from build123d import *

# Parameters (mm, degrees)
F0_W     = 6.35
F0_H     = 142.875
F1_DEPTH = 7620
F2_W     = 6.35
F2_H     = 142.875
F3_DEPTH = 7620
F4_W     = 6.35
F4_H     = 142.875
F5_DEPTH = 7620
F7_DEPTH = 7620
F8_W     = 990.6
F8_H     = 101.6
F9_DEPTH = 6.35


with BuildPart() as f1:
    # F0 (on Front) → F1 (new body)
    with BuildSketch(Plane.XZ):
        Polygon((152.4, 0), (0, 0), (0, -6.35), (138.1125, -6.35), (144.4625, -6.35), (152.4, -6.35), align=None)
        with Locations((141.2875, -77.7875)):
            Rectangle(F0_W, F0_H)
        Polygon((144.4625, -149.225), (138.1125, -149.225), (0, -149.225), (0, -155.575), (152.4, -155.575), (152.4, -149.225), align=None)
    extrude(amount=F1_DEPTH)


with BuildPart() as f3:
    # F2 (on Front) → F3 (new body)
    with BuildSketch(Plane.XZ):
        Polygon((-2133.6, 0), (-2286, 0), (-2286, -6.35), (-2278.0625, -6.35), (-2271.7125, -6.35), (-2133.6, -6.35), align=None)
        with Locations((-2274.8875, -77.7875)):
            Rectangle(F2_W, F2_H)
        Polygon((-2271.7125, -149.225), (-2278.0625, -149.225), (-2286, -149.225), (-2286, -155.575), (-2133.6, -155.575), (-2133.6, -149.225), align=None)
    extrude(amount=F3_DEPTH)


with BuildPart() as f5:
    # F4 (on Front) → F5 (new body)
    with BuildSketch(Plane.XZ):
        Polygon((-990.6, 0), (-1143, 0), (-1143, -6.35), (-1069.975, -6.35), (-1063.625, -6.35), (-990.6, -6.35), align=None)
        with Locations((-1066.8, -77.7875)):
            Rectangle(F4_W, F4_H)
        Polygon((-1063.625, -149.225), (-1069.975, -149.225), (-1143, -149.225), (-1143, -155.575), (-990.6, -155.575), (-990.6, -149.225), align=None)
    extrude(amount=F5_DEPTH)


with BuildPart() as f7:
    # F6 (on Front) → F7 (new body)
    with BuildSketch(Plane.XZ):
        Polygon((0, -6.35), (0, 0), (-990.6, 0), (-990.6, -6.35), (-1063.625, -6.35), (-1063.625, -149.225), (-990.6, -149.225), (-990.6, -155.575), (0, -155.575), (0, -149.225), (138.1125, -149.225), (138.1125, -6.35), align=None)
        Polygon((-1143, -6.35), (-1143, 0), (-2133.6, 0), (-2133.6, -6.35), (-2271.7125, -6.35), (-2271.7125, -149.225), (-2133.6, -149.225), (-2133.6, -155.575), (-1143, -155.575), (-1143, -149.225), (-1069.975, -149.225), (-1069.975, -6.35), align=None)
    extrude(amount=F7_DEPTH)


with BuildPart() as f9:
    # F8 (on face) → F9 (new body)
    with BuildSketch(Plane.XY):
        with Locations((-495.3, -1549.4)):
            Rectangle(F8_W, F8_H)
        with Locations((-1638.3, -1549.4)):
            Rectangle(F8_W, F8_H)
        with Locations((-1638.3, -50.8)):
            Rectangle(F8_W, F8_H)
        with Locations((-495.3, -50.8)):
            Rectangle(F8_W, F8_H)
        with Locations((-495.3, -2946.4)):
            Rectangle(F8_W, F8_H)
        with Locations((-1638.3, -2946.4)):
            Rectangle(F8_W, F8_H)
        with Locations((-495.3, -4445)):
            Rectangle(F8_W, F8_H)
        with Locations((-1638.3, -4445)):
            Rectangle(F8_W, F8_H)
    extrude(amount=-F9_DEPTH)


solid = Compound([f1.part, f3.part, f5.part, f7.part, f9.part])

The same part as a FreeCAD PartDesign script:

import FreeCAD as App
import Part
import Sketcher

V = App.Vector
Q = App.Units.Quantity

doc = App.newDocument("Part")
body = doc.addObject("PartDesign::Body", "Body")

# Sketch on XZ plane
sketch1 = body.newObject("Sketcher::SketchObject", "Sketch")
sketch1.AttachmentSupport = (doc.getObject("XZ_Plane"), [""])
sketch1.MapMode = "FlatFace"
sketch1.addGeometry([
    Part.LineSegment(V(152, 0, 0), V(0, 0, 0)),  # 0
    Part.LineSegment(V(0, 0, 0), V(0, -6, 0)),  # 1
    Part.LineSegment(V(0, -6, 0), V(138, -6, 0)),  # 2
    Part.LineSegment(V(138, -6, 0), V(138, -149, 0)),  # 3
    Part.LineSegment(V(138, -149, 0), V(0, -149, 0)),  # 4
    Part.LineSegment(V(0, -149, 0), V(0, -156, 0)),  # 5
    Part.LineSegment(V(0, -156, 0), V(152, -156, 0)),  # 6
    Part.LineSegment(V(152, -156, 0), V(152, -149, 0)),  # 7
    Part.LineSegment(V(152, -149, 0), V(144, -149, 0)),  # 8
    Part.LineSegment(V(144, -149, 0), V(144, -6, 0)),  # 9
    Part.LineSegment(V(144, -6, 0), V(152, -6, 0)),  # 10
    Part.LineSegment(V(152, -6, 0), V(152, 0, 0)),  # 11
], False)
sketch1.addConstraint([
    Sketcher.Constraint("Coincident", 0, 2, 1, 1),
    Sketcher.Constraint("Coincident", 1, 2, 2, 1),
    Sketcher.Constraint("Coincident", 2, 2, 3, 1),
    Sketcher.Constraint("Coincident", 3, 2, 4, 1),
    Sketcher.Constraint("Coincident", 4, 2, 5, 1),
    Sketcher.Constraint("Coincident", 5, 2, 6, 1),
    Sketcher.Constraint("Coincident", 6, 2, 7, 1),
    Sketcher.Constraint("Coincident", 7, 2, 8, 1),
    Sketcher.Constraint("Coincident", 8, 2, 9, 1),
    Sketcher.Constraint("Coincident", 9, 2, 10, 1),
    Sketcher.Constraint("Coincident", 10, 2, 11, 1),
    Sketcher.Constraint("Coincident", 11, 2, 0, 1),
    Sketcher.Constraint("Horizontal", 0),
    Sketcher.Constraint("Vertical", 1),
    Sketcher.Constraint("Horizontal", 2),
    Sketcher.Constraint("Vertical", 3),
    Sketcher.Constraint("Horizontal", 4),
    Sketcher.Constraint("Vertical", 5),
    Sketcher.Constraint("Horizontal", 6),
    Sketcher.Constraint("Vertical", 7),
    Sketcher.Constraint("Horizontal", 8),
    Sketcher.Constraint("Vertical", 9),
    Sketcher.Constraint("Horizontal", 10),
    Sketcher.Constraint("Vertical", 11),
    Sketcher.Constraint("Coincident", 0, 2, -1, 1),
    Sketcher.Constraint("PointOnObject", 4, 2, -2),
    Sketcher.Constraint("Horizontal", 4, 2, 7, 2),
    Sketcher.Constraint("Horizontal", 2, 2, 9, 2),
    Sketcher.Constraint("Vertical", 7, 2, 10, 2),
    Sketcher.Constraint("Equal", 1, 5),
    Sketcher.Constraint("DistanceX", 0, 2, 0, 1, Q("6 in")),
    Sketcher.Constraint("DistanceY", 1, 2, 1, 1, Q("0.25 in")),
    Sketcher.Constraint("DistanceX", 2, 1, 2, 2, Q("5.4375 in")),
    Sketcher.Constraint("DistanceX", 8, 2, 8, 1, Q("0.3125 in")),
    Sketcher.Constraint("DistanceY", 3, 2, 3, 1, Q("5.625 in")),
])
pad1 = body.newObject("PartDesign::Pad", "Pad")
pad1.Profile = sketch1
pad1.Length = Q("300 in")
body2 = doc.addObject("PartDesign::Body", "Body001")

# Sketch on XZ plane
sketch2 = body2.newObject("Sketcher::SketchObject", "Sketch001")
sketch2.AttachmentSupport = (doc.getObject("XZ_Plane001"), [""])
sketch2.MapMode = "FlatFace"
sketch2.addGeometry([
    Part.LineSegment(V(-2134, 0, 0), V(-2286, 0, 0)),  # 0
    Part.LineSegment(V(-2286, 0, 0), V(-2286, -6, 0)),  # 1
    Part.LineSegment(V(-2286, -6, 0), V(-2278, -6, 0)),  # 2
    Part.LineSegment(V(-2278, -6, 0), V(-2278, -149, 0)),  # 3
    Part.LineSegment(V(-2278, -149, 0), V(-2286, -149, 0)),  # 4
    Part.LineSegment(V(-2286, -149, 0), V(-2286, -156, 0)),  # 5
    Part.LineSegment(V(-2286, -156, 0), V(-2134, -156, 0)),  # 6
    Part.LineSegment(V(-2134, -156, 0), V(-2134, -149, 0)),  # 7
    Part.LineSegment(V(-2134, -149, 0), V(-2272, -149, 0)),  # 8
    Part.LineSegment(V(-2272, -149, 0), V(-2272, -6, 0)),  # 9
    Part.LineSegment(V(-2272, -6, 0), V(-2134, -6, 0)),  # 10
    Part.LineSegment(V(-2134, -6, 0), V(-2134, 0, 0)),  # 11
], False)
sketch2.addConstraint([
    Sketcher.Constraint("Coincident", 0, 2, 1, 1),
    Sketcher.Constraint("Coincident", 1, 2, 2, 1),
    Sketcher.Constraint("Coincident", 2, 2, 3, 1),
    Sketcher.Constraint("Coincident", 3, 2, 4, 1),
    Sketcher.Constraint("Coincident", 4, 2, 5, 1),
    Sketcher.Constraint("Coincident", 5, 2, 6, 1),
    Sketcher.Constraint("Coincident", 6, 2, 7, 1),
    Sketcher.Constraint("Coincident", 7, 2, 8, 1),
    Sketcher.Constraint("Coincident", 8, 2, 9, 1),
    Sketcher.Constraint("Coincident", 9, 2, 10, 1),
    Sketcher.Constraint("Coincident", 10, 2, 11, 1),
    Sketcher.Constraint("Coincident", 11, 2, 0, 1),
    Sketcher.Constraint("Horizontal", 0),
    Sketcher.Constraint("Vertical", 1),
    Sketcher.Constraint("Horizontal", 2),
    Sketcher.Constraint("Vertical", 3),
    Sketcher.Constraint("Horizontal", 4),
    Sketcher.Constraint("Vertical", 5),
    Sketcher.Constraint("Horizontal", 6),
    Sketcher.Constraint("Vertical", 7),
    Sketcher.Constraint("Horizontal", 8),
    Sketcher.Constraint("Vertical", 9),
    Sketcher.Constraint("Horizontal", 10),
    Sketcher.Constraint("Vertical", 11),
    Sketcher.Constraint("PointOnObject", 0, 2, -1),
    Sketcher.Constraint("Horizontal", 4, 2, 7, 2),
    Sketcher.Constraint("Horizontal", 2, 2, 9, 2),
    Sketcher.Constraint("Vertical", 1, 2, 4, 2),
    Sketcher.Constraint("Vertical", 7, 2, 10, 2),
    Sketcher.Constraint("Equal", 1, 5),
    Sketcher.Constraint("DistanceX", 0, 2, 0, 1, Q("6 in")),
    Sketcher.Constraint("DistanceX", 0, 2, -1, 1, Q("90 in")),
    Sketcher.Constraint("DistanceY", 1, 2, 1, 1, Q("0.25 in")),
    Sketcher.Constraint("DistanceX", 2, 1, 2, 2, Q("0.3125 in")),
    Sketcher.Constraint("DistanceX", 8, 2, 8, 1, Q("5.4375 in")),
    Sketcher.Constraint("DistanceY", 3, 2, 3, 1, Q("5.625 in")),
])
pad2 = body2.newObject("PartDesign::Pad", "Pad001")
pad2.Profile = sketch2
pad2.Length = Q("300 in")
body3 = doc.addObject("PartDesign::Body", "Body002")

# Sketch on XZ plane
sketch3 = body3.newObject("Sketcher::SketchObject", "Sketch002")
sketch3.AttachmentSupport = (doc.getObject("XZ_Plane002"), [""])
sketch3.MapMode = "FlatFace"
sketch3.addGeometry([
    Part.LineSegment(V(-991, 0, 0), V(-1143, 0, 0)),  # 0
    Part.LineSegment(V(-1143, 0, 0), V(-1143, -6, 0)),  # 1
    Part.LineSegment(V(-1143, -6, 0), V(-1070, -6, 0)),  # 2
    Part.LineSegment(V(-1070, -6, 0), V(-1070, -149, 0)),  # 3
    Part.LineSegment(V(-1070, -149, 0), V(-1143, -149, 0)),  # 4
    Part.LineSegment(V(-1143, -149, 0), V(-1143, -156, 0)),  # 5
    Part.LineSegment(V(-1143, -156, 0), V(-991, -156, 0)),  # 6
    Part.LineSegment(V(-991, -156, 0), V(-991, -149, 0)),  # 7
    Part.LineSegment(V(-991, -149, 0), V(-1064, -149, 0)),  # 8
    Part.LineSegment(V(-1064, -149, 0), V(-1064, -6, 0)),  # 9
    Part.LineSegment(V(-1064, -6, 0), V(-991, -6, 0)),  # 10
    Part.LineSegment(V(-991, -6, 0), V(-991, 0, 0)),  # 11
], False)
sketch3.addConstraint([
    Sketcher.Constraint("Coincident", 0, 2, 1, 1),
    Sketcher.Constraint("Coincident", 1, 2, 2, 1),
    Sketcher.Constraint("Coincident", 2, 2, 3, 1),
    Sketcher.Constraint("Coincident", 3, 2, 4, 1),
    Sketcher.Constraint("Coincident", 4, 2, 5, 1),
    Sketcher.Constraint("Coincident", 5, 2, 6, 1),
    Sketcher.Constraint("Coincident", 6, 2, 7, 1),
    Sketcher.Constraint("Coincident", 7, 2, 8, 1),
    Sketcher.Constraint("Coincident", 8, 2, 9, 1),
    Sketcher.Constraint("Coincident", 9, 2, 10, 1),
    Sketcher.Constraint("Coincident", 10, 2, 11, 1),
    Sketcher.Constraint("Coincident", 11, 2, 0, 1),
    Sketcher.Constraint("Horizontal", 0),
    Sketcher.Constraint("Vertical", 1),
    Sketcher.Constraint("Horizontal", 2),
    Sketcher.Constraint("Vertical", 3),
    Sketcher.Constraint("Horizontal", 4),
    Sketcher.Constraint("Vertical", 5),
    Sketcher.Constraint("Horizontal", 6),
    Sketcher.Constraint("Vertical", 7),
    Sketcher.Constraint("Horizontal", 8),
    Sketcher.Constraint("Vertical", 9),
    Sketcher.Constraint("Horizontal", 10),
    Sketcher.Constraint("Vertical", 11),
    Sketcher.Constraint("PointOnObject", 0, 2, -1),
    Sketcher.Constraint("Horizontal", 4, 2, 7, 2),
    Sketcher.Constraint("Horizontal", 2, 2, 9, 2),
    Sketcher.Constraint("Vertical", 1, 2, 4, 2),
    Sketcher.Constraint("Vertical", 7, 2, 10, 2),
    Sketcher.Constraint("Equal", 4, 8),
    Sketcher.Constraint("Equal", 1, 5),
    Sketcher.Constraint("DistanceX", 0, 2, 0, 1, Q("6 in")),
    Sketcher.Constraint("DistanceX", 0, 2, -1, 1, Q("45 in")),
    Sketcher.Constraint("DistanceY", 1, 2, 1, 1, Q("0.25 in")),
    Sketcher.Constraint("DistanceX", 2, 1, 2, 2, Q("2.875 in")),
    Sketcher.Constraint("DistanceY", 3, 2, 3, 1, Q("5.625 in")),
])
pad3 = body3.newObject("PartDesign::Pad", "Pad002")
pad3.Profile = sketch3
pad3.Length = Q("300 in")
body4 = doc.addObject("PartDesign::Body", "Body003")
body4.AllowCompound = True

# Sketch on XZ plane
sketch4 = body4.newObject("Sketcher::SketchObject", "Sketch003")
sketch4.AttachmentSupport = (doc.getObject("XZ_Plane003"), [""])
sketch4.MapMode = "FlatFace"
sketch4.addGeometry([
    Part.LineSegment(V(0, -6, 0), V(0, 0, 0)),  # 0
    Part.LineSegment(V(0, 0, 0), V(-991, 0, 0)),  # 1
    Part.LineSegment(V(-991, 0, 0), V(-991, -6, 0)),  # 2
    Part.LineSegment(V(-991, -6, 0), V(-1064, -6, 0)),  # 3
    Part.LineSegment(V(-1064, -6, 0), V(-1064, -149, 0)),  # 4
    Part.LineSegment(V(-1064, -149, 0), V(-991, -149, 0)),  # 5
    Part.LineSegment(V(-991, -149, 0), V(-991, -156, 0)),  # 6
    Part.LineSegment(V(-991, -156, 0), V(0, -156, 0)),  # 7
    Part.LineSegment(V(0, -156, 0), V(0, -149, 0)),  # 8
    Part.LineSegment(V(0, -149, 0), V(138, -149, 0)),  # 9
    Part.LineSegment(V(138, -149, 0), V(138, -6, 0)),  # 10
    Part.LineSegment(V(138, -6, 0), V(0, -6, 0)),  # 11
    Part.LineSegment(V(-1143, -6, 0), V(-1143, 0, 0)),  # 12
    Part.LineSegment(V(-1143, 0, 0), V(-2134, 0, 0)),  # 13
    Part.LineSegment(V(-2134, 0, 0), V(-2134, -6, 0)),  # 14
    Part.LineSegment(V(-2134, -6, 0), V(-2272, -6, 0)),  # 15
    Part.LineSegment(V(-2272, -6, 0), V(-2272, -149, 0)),  # 16
    Part.LineSegment(V(-2272, -149, 0), V(-2134, -149, 0)),  # 17
    Part.LineSegment(V(-2134, -149, 0), V(-2134, -156, 0)),  # 18
    Part.LineSegment(V(-2134, -156, 0), V(-1143, -156, 0)),  # 19
    Part.LineSegment(V(-1143, -156, 0), V(-1143, -149, 0)),  # 20
    Part.LineSegment(V(-1143, -149, 0), V(-1070, -149, 0)),  # 21
    Part.LineSegment(V(-1070, -149, 0), V(-1070, -6, 0)),  # 22
    Part.LineSegment(V(-1070, -6, 0), V(-1143, -6, 0)),  # 23
], False)
sketch4.addConstraint([
    Sketcher.Constraint("Coincident", 0, 2, 1, 1),
    Sketcher.Constraint("Coincident", 1, 2, 2, 1),
    Sketcher.Constraint("Coincident", 2, 2, 3, 1),
    Sketcher.Constraint("Coincident", 3, 2, 4, 1),
    Sketcher.Constraint("Coincident", 4, 2, 5, 1),
    Sketcher.Constraint("Coincident", 5, 2, 6, 1),
    Sketcher.Constraint("Coincident", 6, 2, 7, 1),
    Sketcher.Constraint("Coincident", 7, 2, 8, 1),
    Sketcher.Constraint("Coincident", 8, 2, 9, 1),
    Sketcher.Constraint("Coincident", 9, 2, 10, 1),
    Sketcher.Constraint("Coincident", 10, 2, 11, 1),
    Sketcher.Constraint("Coincident", 11, 2, 0, 1),
    Sketcher.Constraint("Coincident", 12, 2, 13, 1),
    Sketcher.Constraint("Coincident", 13, 2, 14, 1),
    Sketcher.Constraint("Coincident", 14, 2, 15, 1),
    Sketcher.Constraint("Coincident", 15, 2, 16, 1),
    Sketcher.Constraint("Coincident", 16, 2, 17, 1),
    Sketcher.Constraint("Coincident", 17, 2, 18, 1),
    Sketcher.Constraint("Coincident", 18, 2, 19, 1),
    Sketcher.Constraint("Coincident", 19, 2, 20, 1),
    Sketcher.Constraint("Coincident", 20, 2, 21, 1),
    Sketcher.Constraint("Coincident", 21, 2, 22, 1),
    Sketcher.Constraint("Coincident", 22, 2, 23, 1),
    Sketcher.Constraint("Coincident", 23, 2, 12, 1),
    Sketcher.Constraint("Vertical", 0),
    Sketcher.Constraint("Horizontal", 1),
    Sketcher.Constraint("Vertical", 2),
    Sketcher.Constraint("Horizontal", 3),
    Sketcher.Constraint("Vertical", 4),
    Sketcher.Constraint("Horizontal", 5),
    Sketcher.Constraint("Vertical", 6),
    Sketcher.Constraint("Horizontal", 7),
    Sketcher.Constraint("Vertical", 8),
    Sketcher.Constraint("Horizontal", 9),
    Sketcher.Constraint("Vertical", 10),
    Sketcher.Constraint("Horizontal", 11),
    Sketcher.Constraint("Vertical", 12),
    Sketcher.Constraint("Horizontal", 13),
    Sketcher.Constraint("Vertical", 14),
    Sketcher.Constraint("Horizontal", 15),
    Sketcher.Constraint("Vertical", 16),
    Sketcher.Constraint("Horizontal", 17),
    Sketcher.Constraint("Vertical", 18),
    Sketcher.Constraint("Horizontal", 19),
    Sketcher.Constraint("Vertical", 20),
    Sketcher.Constraint("Horizontal", 21),
    Sketcher.Constraint("Vertical", 22),
    Sketcher.Constraint("Horizontal", 23),
    Sketcher.Constraint("Coincident", 0, 2, -1, 1),
    Sketcher.Constraint("PointOnObject", 7, 2, -2),
    Sketcher.Constraint("PointOnObject", 12, 2, -1),
    Sketcher.Constraint("Horizontal", 5, 2, 8, 2),
    Sketcher.Constraint("Horizontal", 3, 2, 10, 2),
    Sketcher.Constraint("Horizontal", 11, 2, 14, 2),
    Sketcher.Constraint("Horizontal", 9, 2, 16, 2),
    Sketcher.Constraint("Horizontal", 7, 2, 18, 2),
    Sketcher.Constraint("Horizontal", 17, 2, 20, 2),
    Sketcher.Constraint("Horizontal", 15, 2, 22, 2),
    Sketcher.Constraint("Vertical", 2, 2, 5, 2),
    Sketcher.Constraint("Vertical", 14, 2, 17, 2),
    Sketcher.Constraint("Vertical", 12, 2, 19, 2),
    Sketcher.Constraint("Equal", 7, 13),
    Sketcher.Constraint("Equal", 11, 15),
    Sketcher.Constraint("Equal", 5, 21),
    Sketcher.Constraint("Equal", 2, 6),
    Sketcher.Constraint("DistanceX", 1, 2, 1, 1, Q("39 in")),
    Sketcher.Constraint("DistanceX", 12, 2, -1, 1, Q("45 in")),
    Sketcher.Constraint("DistanceY", 0, 1, 0, 2, Q("0.25 in")),
    Sketcher.Constraint("DistanceX", 3, 2, 3, 1, Q("2.875 in")),
    Sketcher.Constraint("DistanceX", 9, 1, 9, 2, Q("5.4375 in")),
    Sketcher.Constraint("DistanceY", 4, 2, 4, 1, Q("5.625 in")),
])
pad4 = body4.newObject("PartDesign::Pad", "Pad003")
pad4.Profile = sketch4
pad4.Length = Q("300 in")
body5 = doc.addObject("PartDesign::Body", "Body004")
body5.AllowCompound = True

# Sketch on XY plane
sketch5 = body5.newObject("Sketcher::SketchObject", "Sketch004")
sketch5.AttachmentSupport = (doc.getObject("XY_Plane004"), [""])
sketch5.MapMode = "FlatFace"
sketch5.addGeometry([
    Part.LineSegment(V(-991, -1499, 0), V(-991, -1600, 0)),  # 0
    Part.LineSegment(V(-991, -1600, 0), V(0, -1600, 0)),  # 1
    Part.LineSegment(V(0, -1600, 0), V(0, -1499, 0)),  # 2
    Part.LineSegment(V(0, -1499, 0), V(-991, -1499, 0)),  # 3
    Part.LineSegment(V(-2134, -1499, 0), V(-2134, -1600, 0)),  # 4
    Part.LineSegment(V(-2134, -1600, 0), V(-1143, -1600, 0)),  # 5
    Part.LineSegment(V(-1143, -1600, 0), V(-1143, -1499, 0)),  # 6
    Part.LineSegment(V(-1143, -1499, 0), V(-2134, -1499, 0)),  # 7
    Part.LineSegment(V(-2134, 0, 0), V(-2134, -102, 0)),  # 8
    Part.LineSegment(V(-2134, -102, 0), V(-1143, -102, 0)),  # 9
    Part.LineSegment(V(-1143, -102, 0), V(-1143, 0, 0)),  # 10
    Part.LineSegment(V(-1143, 0, 0), V(-2134, 0, 0)),  # 11
    Part.LineSegment(V(-991, 0, 0), V(-991, -102, 0)),  # 12
    Part.LineSegment(V(-991, -102, 0), V(0, -102, 0)),  # 13
    Part.LineSegment(V(0, -102, 0), V(0, 0, 0)),  # 14
    Part.LineSegment(V(0, 0, 0), V(-991, 0, 0)),  # 15
    Part.LineSegment(V(-991, -2896, 0), V(-991, -2997, 0)),  # 16
    Part.LineSegment(V(-991, -2997, 0), V(0, -2997, 0)),  # 17
    Part.LineSegment(V(0, -2997, 0), V(0, -2896, 0)),  # 18
    Part.LineSegment(V(0, -2896, 0), V(-991, -2896, 0)),  # 19
    Part.LineSegment(V(-2134, -2896, 0), V(-2134, -2997, 0)),  # 20
    Part.LineSegment(V(-2134, -2997, 0), V(-1143, -2997, 0)),  # 21
    Part.LineSegment(V(-1143, -2997, 0), V(-1143, -2896, 0)),  # 22
    Part.LineSegment(V(-1143, -2896, 0), V(-2134, -2896, 0)),  # 23
    Part.LineSegment(V(-991, -4394, 0), V(-991, -4496, 0)),  # 24
    Part.LineSegment(V(-991, -4496, 0), V(0, -4496, 0)),  # 25
    Part.LineSegment(V(0, -4496, 0), V(0, -4394, 0)),  # 26
    Part.LineSegment(V(0, -4394, 0), V(-991, -4394, 0)),  # 27
    Part.LineSegment(V(-2134, -4394, 0), V(-2134, -4496, 0)),  # 28
    Part.LineSegment(V(-2134, -4496, 0), V(-1143, -4496, 0)),  # 29
    Part.LineSegment(V(-1143, -4496, 0), V(-1143, -4394, 0)),  # 30
    Part.LineSegment(V(-1143, -4394, 0), V(-2134, -4394, 0)),  # 31
], False)
sketch5.addConstraint([
    Sketcher.Constraint("Coincident", 0, 2, 1, 1),
    Sketcher.Constraint("Coincident", 1, 2, 2, 1),
    Sketcher.Constraint("Coincident", 2, 2, 3, 1),
    Sketcher.Constraint("Coincident", 3, 2, 0, 1),
    Sketcher.Constraint("Coincident", 4, 2, 5, 1),
    Sketcher.Constraint("Coincident", 5, 2, 6, 1),
    Sketcher.Constraint("Coincident", 6, 2, 7, 1),
    Sketcher.Constraint("Coincident", 7, 2, 4, 1),
    Sketcher.Constraint("Coincident", 8, 2, 9, 1),
    Sketcher.Constraint("Coincident", 9, 2, 10, 1),
    Sketcher.Constraint("Coincident", 10, 2, 11, 1),
    Sketcher.Constraint("Coincident", 11, 2, 8, 1),
    Sketcher.Constraint("Coincident", 12, 2, 13, 1),
    Sketcher.Constraint("Coincident", 13, 2, 14, 1),
    Sketcher.Constraint("Coincident", 14, 2, 15, 1),
    Sketcher.Constraint("Coincident", 15, 2, 12, 1),
    Sketcher.Constraint("Coincident", 16, 2, 17, 1),
    Sketcher.Constraint("Coincident", 17, 2, 18, 1),
    Sketcher.Constraint("Coincident", 18, 2, 19, 1),
    Sketcher.Constraint("Coincident", 19, 2, 16, 1),
    Sketcher.Constraint("Coincident", 20, 2, 21, 1),
    Sketcher.Constraint("Coincident", 21, 2, 22, 1),
    Sketcher.Constraint("Coincident", 22, 2, 23, 1),
    Sketcher.Constraint("Coincident", 23, 2, 20, 1),
    Sketcher.Constraint("Coincident", 24, 2, 25, 1),
    Sketcher.Constraint("Coincident", 25, 2, 26, 1),
    Sketcher.Constraint("Coincident", 26, 2, 27, 1),
    Sketcher.Constraint("Coincident", 27, 2, 24, 1),
    Sketcher.Constraint("Coincident", 28, 2, 29, 1),
    Sketcher.Constraint("Coincident", 29, 2, 30, 1),
    Sketcher.Constraint("Coincident", 30, 2, 31, 1),
    Sketcher.Constraint("Coincident", 31, 2, 28, 1),
    Sketcher.Constraint("Vertical", 0),
    Sketcher.Constraint("Horizontal", 1),
    Sketcher.Constraint("Vertical", 2),
    Sketcher.Constraint("Horizontal", 3),
    Sketcher.Constraint("Vertical", 4),
    Sketcher.Constraint("Horizontal", 5),
    Sketcher.Constraint("Vertical", 6),
    Sketcher.Constraint("Horizontal", 7),
    Sketcher.Constraint("Vertical", 8),
    Sketcher.Constraint("Horizontal", 9),
    Sketcher.Constraint("Vertical", 10),
    Sketcher.Constraint("Horizontal", 11),
    Sketcher.Constraint("Vertical", 12),
    Sketcher.Constraint("Horizontal", 13),
    Sketcher.Constraint("Vertical", 14),
    Sketcher.Constraint("Horizontal", 15),
    Sketcher.Constraint("Vertical", 16),
    Sketcher.Constraint("Horizontal", 17),
    Sketcher.Constraint("Vertical", 18),
    Sketcher.Constraint("Horizontal", 19),
    Sketcher.Constraint("Vertical", 20),
    Sketcher.Constraint("Horizontal", 21),
    Sketcher.Constraint("Vertical", 22),
    Sketcher.Constraint("Horizontal", 23),
    Sketcher.Constraint("Vertical", 24),
    Sketcher.Constraint("Horizontal", 25),
    Sketcher.Constraint("Vertical", 26),
    Sketcher.Constraint("Horizontal", 27),
    Sketcher.Constraint("Vertical", 28),
    Sketcher.Constraint("Horizontal", 29),
    Sketcher.Constraint("Vertical", 30),
    Sketcher.Constraint("Horizontal", 31),
    Sketcher.Constraint("Coincident", 14, 2, -1, 1),
    Sketcher.Constraint("PointOnObject", 1, 2, -2),
    Sketcher.Constraint("PointOnObject", 10, 2, -1),
    Sketcher.Constraint("PointOnObject", 17, 2, -2),
    Sketcher.Constraint("PointOnObject", 25, 2, -2),
    Sketcher.Constraint("Horizontal", 1, 2, 4, 2),
    Sketcher.Constraint("Horizontal", 3, 2, 6, 2),
    Sketcher.Constraint("Horizontal", 9, 2, 12, 2),
    Sketcher.Constraint("Horizontal", 17, 2, 20, 2),
    Sketcher.Constraint("Horizontal", 19, 2, 22, 2),
    Sketcher.Constraint("Horizontal", 25, 2, 28, 2),
    Sketcher.Constraint("Horizontal", 27, 2, 30, 2),
    Sketcher.Constraint("Vertical", 7, 2, 8, 2),
    Sketcher.Constraint("Vertical", 6, 2, 9, 2),
    Sketcher.Constraint("Vertical", 3, 2, 12, 2),
    Sketcher.Constraint("Vertical", 15, 2, 16, 2),
    Sketcher.Constraint("Vertical", 11, 2, 20, 2),
    Sketcher.Constraint("Vertical", 10, 2, 21, 2),
    Sketcher.Constraint("Vertical", 19, 2, 24, 2),
    Sketcher.Constraint("Vertical", 23, 2, 28, 2),
    Sketcher.Constraint("Vertical", 22, 2, 29, 2),
    Sketcher.Constraint("Equal", 3, 5),
    Sketcher.Constraint("Equal", 6, 8),
    Sketcher.Constraint("Equal", 14, 16),
    Sketcher.Constraint("Equal", 22, 24),
    Sketcher.Constraint("DistanceX", 1, 1, 1, 2, Q("39 in")),
    Sketcher.Constraint("DistanceY", 0, 2, 0, 1, Q("4 in")),
    Sketcher.Constraint("DistanceY", 0, 2, -1, 1, Q("63 in")),
    Sketcher.Constraint("DistanceX", 4, 2, -1, 1, Q("84 in")),
    Sketcher.Constraint("DistanceY", 16, 2, -1, 1, Q("118 in")),
    Sketcher.Constraint("DistanceY", 24, 2, -1, 1, Q("177 in")),
])
pad5 = body5.newObject("PartDesign::Pad", "Pad004")
pad5.Profile = sketch5
pad5.Length = Q("0.25 in")
pad5.Reversed = True

doc.recompute()
